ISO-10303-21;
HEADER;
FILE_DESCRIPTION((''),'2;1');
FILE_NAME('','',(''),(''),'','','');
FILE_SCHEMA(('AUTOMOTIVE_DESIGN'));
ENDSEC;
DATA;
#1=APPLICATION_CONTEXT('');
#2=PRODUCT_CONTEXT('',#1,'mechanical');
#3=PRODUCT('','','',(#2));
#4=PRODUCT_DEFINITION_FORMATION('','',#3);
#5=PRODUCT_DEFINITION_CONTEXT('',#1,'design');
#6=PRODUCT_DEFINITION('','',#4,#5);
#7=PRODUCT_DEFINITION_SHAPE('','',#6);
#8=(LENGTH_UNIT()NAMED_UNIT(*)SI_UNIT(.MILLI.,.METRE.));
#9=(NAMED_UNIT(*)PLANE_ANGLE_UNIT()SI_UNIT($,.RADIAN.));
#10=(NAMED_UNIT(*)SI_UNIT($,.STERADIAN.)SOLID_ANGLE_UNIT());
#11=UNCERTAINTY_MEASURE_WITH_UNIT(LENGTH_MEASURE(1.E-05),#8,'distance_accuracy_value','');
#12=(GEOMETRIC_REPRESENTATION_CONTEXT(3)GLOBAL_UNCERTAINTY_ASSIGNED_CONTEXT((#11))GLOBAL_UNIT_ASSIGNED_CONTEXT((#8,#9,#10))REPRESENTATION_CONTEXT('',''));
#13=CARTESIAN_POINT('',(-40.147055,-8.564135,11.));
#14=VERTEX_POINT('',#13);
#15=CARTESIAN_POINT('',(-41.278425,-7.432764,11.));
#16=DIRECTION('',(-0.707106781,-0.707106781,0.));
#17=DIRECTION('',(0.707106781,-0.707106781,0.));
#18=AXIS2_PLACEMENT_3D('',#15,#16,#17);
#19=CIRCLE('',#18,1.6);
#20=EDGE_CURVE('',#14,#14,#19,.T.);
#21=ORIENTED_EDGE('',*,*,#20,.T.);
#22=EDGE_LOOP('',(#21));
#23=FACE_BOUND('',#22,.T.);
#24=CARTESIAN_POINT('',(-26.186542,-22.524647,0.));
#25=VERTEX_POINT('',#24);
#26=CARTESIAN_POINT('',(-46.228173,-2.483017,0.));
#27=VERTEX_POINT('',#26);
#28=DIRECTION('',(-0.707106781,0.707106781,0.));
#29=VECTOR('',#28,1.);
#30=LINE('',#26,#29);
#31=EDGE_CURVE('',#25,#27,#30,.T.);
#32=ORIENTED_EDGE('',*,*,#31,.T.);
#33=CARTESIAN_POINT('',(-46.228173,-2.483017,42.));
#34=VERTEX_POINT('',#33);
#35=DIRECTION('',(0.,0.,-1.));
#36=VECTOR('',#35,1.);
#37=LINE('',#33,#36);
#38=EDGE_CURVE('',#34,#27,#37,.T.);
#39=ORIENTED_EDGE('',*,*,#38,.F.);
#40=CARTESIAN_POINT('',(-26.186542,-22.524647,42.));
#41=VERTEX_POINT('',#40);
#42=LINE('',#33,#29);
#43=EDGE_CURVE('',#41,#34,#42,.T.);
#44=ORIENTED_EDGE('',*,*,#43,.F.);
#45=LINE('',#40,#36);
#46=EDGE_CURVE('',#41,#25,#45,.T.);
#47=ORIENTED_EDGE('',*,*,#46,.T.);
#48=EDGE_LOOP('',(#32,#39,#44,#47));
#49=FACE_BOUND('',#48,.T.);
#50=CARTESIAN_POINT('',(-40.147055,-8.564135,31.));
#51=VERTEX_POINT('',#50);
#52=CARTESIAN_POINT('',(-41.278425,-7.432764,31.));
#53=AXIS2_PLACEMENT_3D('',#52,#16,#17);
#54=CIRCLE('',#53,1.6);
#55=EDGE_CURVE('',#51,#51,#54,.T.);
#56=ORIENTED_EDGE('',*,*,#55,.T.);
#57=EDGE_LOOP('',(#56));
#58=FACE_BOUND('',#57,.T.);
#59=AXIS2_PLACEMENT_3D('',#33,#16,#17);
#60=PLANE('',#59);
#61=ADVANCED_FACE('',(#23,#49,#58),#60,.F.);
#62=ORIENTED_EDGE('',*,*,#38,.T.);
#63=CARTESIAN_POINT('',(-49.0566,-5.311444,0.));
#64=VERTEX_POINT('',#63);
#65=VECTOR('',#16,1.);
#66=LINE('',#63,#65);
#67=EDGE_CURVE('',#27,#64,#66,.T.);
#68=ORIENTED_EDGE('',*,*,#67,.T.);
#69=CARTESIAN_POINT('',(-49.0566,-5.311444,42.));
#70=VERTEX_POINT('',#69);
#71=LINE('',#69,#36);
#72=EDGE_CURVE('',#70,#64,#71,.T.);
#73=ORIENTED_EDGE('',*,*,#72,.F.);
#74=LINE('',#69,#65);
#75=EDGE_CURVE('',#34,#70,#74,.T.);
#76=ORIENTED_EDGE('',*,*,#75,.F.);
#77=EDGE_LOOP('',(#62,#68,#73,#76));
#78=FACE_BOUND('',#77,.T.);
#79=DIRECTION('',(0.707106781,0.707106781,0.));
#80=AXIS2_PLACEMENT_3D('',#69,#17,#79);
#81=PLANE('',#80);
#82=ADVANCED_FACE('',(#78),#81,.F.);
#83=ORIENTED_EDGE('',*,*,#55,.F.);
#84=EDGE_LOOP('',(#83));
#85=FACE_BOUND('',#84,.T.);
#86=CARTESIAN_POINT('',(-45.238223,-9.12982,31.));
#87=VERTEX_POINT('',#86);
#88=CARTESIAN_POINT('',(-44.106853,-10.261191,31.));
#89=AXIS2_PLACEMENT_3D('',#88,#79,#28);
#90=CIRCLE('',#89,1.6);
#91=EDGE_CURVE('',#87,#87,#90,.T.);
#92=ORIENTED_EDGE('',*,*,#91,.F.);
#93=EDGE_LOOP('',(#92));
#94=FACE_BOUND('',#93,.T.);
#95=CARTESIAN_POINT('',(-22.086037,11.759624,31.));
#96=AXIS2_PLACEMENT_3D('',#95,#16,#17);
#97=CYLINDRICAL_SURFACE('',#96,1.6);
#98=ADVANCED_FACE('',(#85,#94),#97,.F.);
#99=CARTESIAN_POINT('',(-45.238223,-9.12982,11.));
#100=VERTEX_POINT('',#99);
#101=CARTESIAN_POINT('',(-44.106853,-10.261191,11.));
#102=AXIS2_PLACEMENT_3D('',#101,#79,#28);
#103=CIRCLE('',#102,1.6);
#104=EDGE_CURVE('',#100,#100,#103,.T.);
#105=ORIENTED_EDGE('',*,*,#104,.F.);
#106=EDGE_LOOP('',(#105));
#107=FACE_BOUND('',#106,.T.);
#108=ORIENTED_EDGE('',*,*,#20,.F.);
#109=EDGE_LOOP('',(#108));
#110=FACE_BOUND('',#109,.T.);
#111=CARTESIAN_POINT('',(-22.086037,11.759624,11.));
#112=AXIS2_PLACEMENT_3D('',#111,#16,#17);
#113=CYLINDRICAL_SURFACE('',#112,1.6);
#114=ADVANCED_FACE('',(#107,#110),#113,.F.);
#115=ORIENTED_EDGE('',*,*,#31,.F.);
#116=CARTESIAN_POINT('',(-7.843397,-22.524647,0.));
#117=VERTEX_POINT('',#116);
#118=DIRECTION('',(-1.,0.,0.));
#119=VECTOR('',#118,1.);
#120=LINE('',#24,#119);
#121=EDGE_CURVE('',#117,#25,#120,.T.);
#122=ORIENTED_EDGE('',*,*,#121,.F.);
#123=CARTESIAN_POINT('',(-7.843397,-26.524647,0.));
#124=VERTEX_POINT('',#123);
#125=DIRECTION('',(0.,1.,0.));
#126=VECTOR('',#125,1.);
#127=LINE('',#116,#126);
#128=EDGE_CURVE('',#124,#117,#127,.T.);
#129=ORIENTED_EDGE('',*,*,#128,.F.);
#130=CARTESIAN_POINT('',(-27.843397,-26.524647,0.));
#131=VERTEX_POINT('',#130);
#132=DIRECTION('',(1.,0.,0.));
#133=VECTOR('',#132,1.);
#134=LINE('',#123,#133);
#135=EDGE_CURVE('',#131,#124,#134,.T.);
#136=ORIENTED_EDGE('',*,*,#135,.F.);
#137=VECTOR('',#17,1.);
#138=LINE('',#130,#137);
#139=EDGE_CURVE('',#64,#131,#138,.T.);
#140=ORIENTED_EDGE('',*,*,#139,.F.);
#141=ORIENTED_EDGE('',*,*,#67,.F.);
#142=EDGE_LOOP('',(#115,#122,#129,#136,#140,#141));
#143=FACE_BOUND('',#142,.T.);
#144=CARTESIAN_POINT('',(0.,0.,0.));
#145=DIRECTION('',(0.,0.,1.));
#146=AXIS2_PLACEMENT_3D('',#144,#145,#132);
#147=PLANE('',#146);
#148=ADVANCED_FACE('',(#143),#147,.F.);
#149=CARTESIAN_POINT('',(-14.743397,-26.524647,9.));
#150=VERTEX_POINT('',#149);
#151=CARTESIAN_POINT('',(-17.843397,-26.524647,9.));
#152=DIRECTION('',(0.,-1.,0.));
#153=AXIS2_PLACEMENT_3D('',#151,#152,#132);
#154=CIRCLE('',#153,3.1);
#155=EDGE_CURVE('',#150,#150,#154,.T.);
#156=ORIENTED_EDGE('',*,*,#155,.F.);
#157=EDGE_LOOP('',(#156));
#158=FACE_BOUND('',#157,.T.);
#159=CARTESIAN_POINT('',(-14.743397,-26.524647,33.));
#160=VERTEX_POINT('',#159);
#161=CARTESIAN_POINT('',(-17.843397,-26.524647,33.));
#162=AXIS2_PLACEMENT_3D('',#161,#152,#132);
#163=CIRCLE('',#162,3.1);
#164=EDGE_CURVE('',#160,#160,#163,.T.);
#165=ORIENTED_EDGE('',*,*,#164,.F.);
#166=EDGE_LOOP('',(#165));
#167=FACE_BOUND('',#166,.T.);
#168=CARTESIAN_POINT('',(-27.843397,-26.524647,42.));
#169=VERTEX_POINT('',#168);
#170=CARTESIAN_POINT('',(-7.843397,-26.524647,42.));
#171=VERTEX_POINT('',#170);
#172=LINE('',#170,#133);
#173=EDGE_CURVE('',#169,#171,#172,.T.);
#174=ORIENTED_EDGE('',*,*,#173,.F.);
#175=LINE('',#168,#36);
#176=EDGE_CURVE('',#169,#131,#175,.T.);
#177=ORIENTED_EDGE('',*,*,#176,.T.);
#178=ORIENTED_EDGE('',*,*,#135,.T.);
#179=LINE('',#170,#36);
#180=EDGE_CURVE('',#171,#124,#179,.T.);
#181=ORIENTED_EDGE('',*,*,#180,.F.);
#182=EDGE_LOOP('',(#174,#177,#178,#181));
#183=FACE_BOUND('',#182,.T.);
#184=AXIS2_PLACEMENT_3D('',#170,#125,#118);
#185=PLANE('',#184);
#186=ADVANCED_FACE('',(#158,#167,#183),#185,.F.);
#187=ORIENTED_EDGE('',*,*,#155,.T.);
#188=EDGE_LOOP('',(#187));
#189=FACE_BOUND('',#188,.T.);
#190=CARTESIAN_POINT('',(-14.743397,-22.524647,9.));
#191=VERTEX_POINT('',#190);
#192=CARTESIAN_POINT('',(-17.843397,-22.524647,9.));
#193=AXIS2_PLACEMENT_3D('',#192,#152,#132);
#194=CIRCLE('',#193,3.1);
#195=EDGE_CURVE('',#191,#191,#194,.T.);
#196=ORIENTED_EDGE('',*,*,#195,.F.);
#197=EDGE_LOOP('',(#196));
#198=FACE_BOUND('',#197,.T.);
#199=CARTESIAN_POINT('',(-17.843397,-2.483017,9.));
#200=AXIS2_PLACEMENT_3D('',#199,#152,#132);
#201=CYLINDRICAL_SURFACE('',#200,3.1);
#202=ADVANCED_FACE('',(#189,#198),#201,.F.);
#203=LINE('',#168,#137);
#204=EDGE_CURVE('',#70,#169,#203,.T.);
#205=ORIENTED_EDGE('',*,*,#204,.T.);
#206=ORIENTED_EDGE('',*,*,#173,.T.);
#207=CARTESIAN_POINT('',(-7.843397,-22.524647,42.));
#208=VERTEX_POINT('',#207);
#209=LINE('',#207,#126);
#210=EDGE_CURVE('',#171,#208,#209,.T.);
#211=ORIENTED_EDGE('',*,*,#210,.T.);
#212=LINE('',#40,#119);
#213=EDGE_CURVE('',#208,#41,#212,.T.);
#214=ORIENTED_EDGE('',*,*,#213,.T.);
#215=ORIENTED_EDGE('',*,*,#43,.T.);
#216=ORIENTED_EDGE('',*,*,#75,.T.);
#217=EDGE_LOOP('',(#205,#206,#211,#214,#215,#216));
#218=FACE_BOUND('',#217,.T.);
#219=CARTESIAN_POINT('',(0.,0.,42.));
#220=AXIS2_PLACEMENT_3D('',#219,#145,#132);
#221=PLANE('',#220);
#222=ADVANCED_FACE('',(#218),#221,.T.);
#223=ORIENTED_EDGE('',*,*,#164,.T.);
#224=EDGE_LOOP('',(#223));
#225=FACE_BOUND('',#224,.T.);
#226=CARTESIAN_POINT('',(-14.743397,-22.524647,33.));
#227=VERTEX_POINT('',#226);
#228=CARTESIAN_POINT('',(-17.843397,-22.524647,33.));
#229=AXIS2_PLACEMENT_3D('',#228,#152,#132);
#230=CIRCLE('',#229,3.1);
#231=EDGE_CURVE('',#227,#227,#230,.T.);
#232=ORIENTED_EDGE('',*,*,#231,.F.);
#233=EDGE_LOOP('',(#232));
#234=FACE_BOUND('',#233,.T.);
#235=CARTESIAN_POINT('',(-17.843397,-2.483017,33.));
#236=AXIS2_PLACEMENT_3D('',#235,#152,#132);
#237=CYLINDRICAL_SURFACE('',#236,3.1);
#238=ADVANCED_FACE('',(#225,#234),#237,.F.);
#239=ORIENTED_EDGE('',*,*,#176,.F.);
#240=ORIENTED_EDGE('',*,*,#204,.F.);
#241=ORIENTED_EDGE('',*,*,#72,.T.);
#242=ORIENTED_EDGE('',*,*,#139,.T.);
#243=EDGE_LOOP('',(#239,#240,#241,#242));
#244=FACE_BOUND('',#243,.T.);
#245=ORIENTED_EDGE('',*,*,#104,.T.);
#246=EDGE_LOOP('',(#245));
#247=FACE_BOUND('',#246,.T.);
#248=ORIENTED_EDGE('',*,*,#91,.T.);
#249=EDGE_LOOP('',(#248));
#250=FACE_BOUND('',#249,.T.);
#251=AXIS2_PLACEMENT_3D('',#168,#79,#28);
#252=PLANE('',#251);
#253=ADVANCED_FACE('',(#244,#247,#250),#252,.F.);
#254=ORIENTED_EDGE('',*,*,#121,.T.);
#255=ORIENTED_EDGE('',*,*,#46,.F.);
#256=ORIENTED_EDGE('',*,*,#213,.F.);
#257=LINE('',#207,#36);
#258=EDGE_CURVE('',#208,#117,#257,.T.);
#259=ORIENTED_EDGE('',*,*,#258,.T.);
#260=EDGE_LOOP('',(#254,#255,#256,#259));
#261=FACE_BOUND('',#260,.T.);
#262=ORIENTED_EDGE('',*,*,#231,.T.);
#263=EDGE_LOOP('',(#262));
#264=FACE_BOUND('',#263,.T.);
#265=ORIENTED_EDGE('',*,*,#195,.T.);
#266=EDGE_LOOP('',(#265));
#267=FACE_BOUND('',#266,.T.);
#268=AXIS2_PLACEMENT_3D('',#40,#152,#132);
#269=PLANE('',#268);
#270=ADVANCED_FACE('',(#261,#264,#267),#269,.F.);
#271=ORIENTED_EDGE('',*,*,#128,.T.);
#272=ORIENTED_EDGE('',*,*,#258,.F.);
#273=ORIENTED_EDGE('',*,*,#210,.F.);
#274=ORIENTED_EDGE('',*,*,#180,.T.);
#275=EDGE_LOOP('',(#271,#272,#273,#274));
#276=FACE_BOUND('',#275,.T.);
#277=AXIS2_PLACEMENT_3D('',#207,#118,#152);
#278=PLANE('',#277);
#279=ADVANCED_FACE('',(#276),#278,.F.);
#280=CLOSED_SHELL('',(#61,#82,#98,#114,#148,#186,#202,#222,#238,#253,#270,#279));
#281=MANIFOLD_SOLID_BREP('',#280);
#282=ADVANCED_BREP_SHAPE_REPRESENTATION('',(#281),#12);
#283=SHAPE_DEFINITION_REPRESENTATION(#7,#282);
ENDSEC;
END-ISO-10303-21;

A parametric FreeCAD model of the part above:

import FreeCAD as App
import Part
import Sketcher

V = App.Vector
Q = App.Units.Quantity


def add_polygon(sketch, points):
    """Adds a closed chain of lines whose ends are joined by coincident constraints."""
    first, n = sketch.GeometryCount, len(points)
    for a, b in zip(points, points[1:] + points[:1]):
        sketch.addGeometry(Part.LineSegment(App.Vector(*a, 0), App.Vector(*b, 0)), False)
    for i in range(n):
        sketch.addConstraint(Sketcher.Constraint("Coincident", first + i, 2, first + (i + 1) % n, 1))

doc = App.newDocument("Part")
params = doc.addObject("Spreadsheet::Sheet", "Params")
for row, (alias, value) in enumerate([
    ("sketch1_width", "20 mm"),
    ("sketch1_height", "4 mm"),
    ("sketch1_length", "4 mm"),
    ("sketch1_length2", "30 mm"),
    ("pad1_length", "42 mm"),
    ("sketch2_diameter", "3.2 mm"),
    ("sketch3_diameter", "6.2 mm"),
], start=1):
    params.set(f"A{row}", alias)
    params.set(f"B{row}", "=" + value)
    params.setAlias(f"B{row}", alias)

body = doc.addObject("PartDesign::Body", "Body")

sketch1 = doc.addObject("Sketcher::SketchObject", "Sketch")
body.addObject(sketch1)
sketch1.AttachmentSupport = (doc.XY_Plane, [""])
sketch1.MapMode = "FlatFace"
add_polygon(sketch1, [(-7.8, -22.5), (-26.2, -22.5), (-46.2, -2.5), (-49.1, -5.3), (-27.8, -26.5), (-7.8, -26.5)])
sketch1.addConstraint(Sketcher.Constraint("Horizontal", 0))
sketch1.addConstraint(Sketcher.Constraint("Horizontal", 4))
sketch1.addConstraint(Sketcher.Constraint("Vertical", 5))
sketch1.addConstraint(Sketcher.Constraint("Perpendicular", 1, 2))
sketch1.addConstraint(Sketcher.Constraint("Perpendicular", 2, 3))
sketch1.addConstraint(Sketcher.Constraint("DistanceX", 4, 1, 4, 2, 20.0))
sketch1.addConstraint(Sketcher.Constraint("DistanceY", 5, 1, 5, 2, 4.0))
sketch1.addConstraint(Sketcher.Constraint("Angle", 1, Q("135 deg")))
sketch1.addConstraint(Sketcher.Constraint("Distance", 2, 4.0))
sketch1.addConstraint(Sketcher.Constraint("Distance", 3, 30.0))
sketch1.addConstraint(Sketcher.Constraint("DistanceX", 2, 2, -1, 1, 49.0566))
sketch1.addConstraint(Sketcher.Constraint("DistanceY", 0, 2, -1, 1, 22.524647))
sketch1.setExpression("Constraints[11]", "Params.sketch1_width")
sketch1.setExpression("Constraints[12]", "Params.sketch1_height")
sketch1.setExpression("Constraints[14]", "Params.sketch1_length")
sketch1.setExpression("Constraints[15]", "Params.sketch1_length2")
pad1 = doc.addObject("PartDesign::Pad", "Pad")
body.addObject(pad1)
pad1.Profile = sketch1
pad1.setExpression("Length", "Params.pad1_length")

sketch2 = doc.addObject("Sketcher::SketchObject", "Sketch001")
body.addObject(sketch2)
sketch2.Placement = App.Placement(V(-27.184022, -27.184022, 0), App.Rotation(V(0, 0, 1), V(-0.707106781, 0.707106781, 0), V(-0.707106781, -0.707106781, 0), "ZXY"))
sketch2.addGeometry(Part.Circle(V(31, 23.9, 0), V(0, 0, 1), 1.6), False)
sketch2.addGeometry(Part.Circle(V(11, 23.9, 0), V(0, 0, 1), 1.6), False)
sketch2.addConstraint(Sketcher.Constraint("Equal", 0, 1))
sketch2.addConstraint(Sketcher.Constraint("Horizontal", 0, 3, 1, 3))
sketch2.addConstraint(Sketcher.Constraint("Diameter", 0, 3.2))
sketch2.addConstraint(Sketcher.Constraint("DistanceX", -1, 1, 0, 3, 31.0))
sketch2.addConstraint(Sketcher.Constraint("DistanceX", -1, 1, 1, 3, 11.0))
sketch2.addConstraint(Sketcher.Constraint("DistanceY", -1, 1, 0, 3, 23.932497))
sketch2.setExpression("Constraints[2]", "Params.sketch2_diameter")
pocket1 = doc.addObject("PartDesign::Pocket", "Pocket")
body.addObject(pocket1)
pocket1.Profile = sketch2
pocket1.Type = "ThroughAll"
pocket1.Midplane = True

sketch3 = doc.addObject("Sketcher::SketchObject", "Sketch002")
body.addObject(sketch3)
sketch3.AttachmentSupport = (doc.XZ_Plane, [""])
sketch3.MapMode = "FlatFace"
sketch3.AttachmentOffset = App.Placement(V(0, 0, 26.524647), App.Rotation())
sketch3.addGeometry(Part.Circle(V(-17.8, 33, 0), V(0, 0, 1), 3.1), False)
sketch3.addGeometry(Part.Circle(V(-17.8, 9, 0), V(0, 0, 1), 3.1), False)
sketch3.addConstraint(Sketcher.Constraint("Equal", 0, 1))
sketch3.addConstraint(Sketcher.Constraint("Vertical", 0, 3, 1, 3))
sketch3.addConstraint(Sketcher.Constraint("Diameter", 0, 6.2))
sketch3.addConstraint(Sketcher.Constraint("DistanceY", -1, 1, 0, 3, 33.0))
sketch3.addConstraint(Sketcher.Constraint("DistanceY", -1, 1, 1, 3, 9.0))
sketch3.addConstraint(Sketcher.Constraint("DistanceX", 0, 3, -1, 1, 17.843397))
sketch3.setExpression("Constraints[2]", "Params.sketch3_diameter")
pocket2 = doc.addObject("PartDesign::Pocket", "Pocket001")
body.addObject(pocket2)
pocket2.Profile = sketch3
pocket2.Type = "ThroughAll"

doc.recompute()
